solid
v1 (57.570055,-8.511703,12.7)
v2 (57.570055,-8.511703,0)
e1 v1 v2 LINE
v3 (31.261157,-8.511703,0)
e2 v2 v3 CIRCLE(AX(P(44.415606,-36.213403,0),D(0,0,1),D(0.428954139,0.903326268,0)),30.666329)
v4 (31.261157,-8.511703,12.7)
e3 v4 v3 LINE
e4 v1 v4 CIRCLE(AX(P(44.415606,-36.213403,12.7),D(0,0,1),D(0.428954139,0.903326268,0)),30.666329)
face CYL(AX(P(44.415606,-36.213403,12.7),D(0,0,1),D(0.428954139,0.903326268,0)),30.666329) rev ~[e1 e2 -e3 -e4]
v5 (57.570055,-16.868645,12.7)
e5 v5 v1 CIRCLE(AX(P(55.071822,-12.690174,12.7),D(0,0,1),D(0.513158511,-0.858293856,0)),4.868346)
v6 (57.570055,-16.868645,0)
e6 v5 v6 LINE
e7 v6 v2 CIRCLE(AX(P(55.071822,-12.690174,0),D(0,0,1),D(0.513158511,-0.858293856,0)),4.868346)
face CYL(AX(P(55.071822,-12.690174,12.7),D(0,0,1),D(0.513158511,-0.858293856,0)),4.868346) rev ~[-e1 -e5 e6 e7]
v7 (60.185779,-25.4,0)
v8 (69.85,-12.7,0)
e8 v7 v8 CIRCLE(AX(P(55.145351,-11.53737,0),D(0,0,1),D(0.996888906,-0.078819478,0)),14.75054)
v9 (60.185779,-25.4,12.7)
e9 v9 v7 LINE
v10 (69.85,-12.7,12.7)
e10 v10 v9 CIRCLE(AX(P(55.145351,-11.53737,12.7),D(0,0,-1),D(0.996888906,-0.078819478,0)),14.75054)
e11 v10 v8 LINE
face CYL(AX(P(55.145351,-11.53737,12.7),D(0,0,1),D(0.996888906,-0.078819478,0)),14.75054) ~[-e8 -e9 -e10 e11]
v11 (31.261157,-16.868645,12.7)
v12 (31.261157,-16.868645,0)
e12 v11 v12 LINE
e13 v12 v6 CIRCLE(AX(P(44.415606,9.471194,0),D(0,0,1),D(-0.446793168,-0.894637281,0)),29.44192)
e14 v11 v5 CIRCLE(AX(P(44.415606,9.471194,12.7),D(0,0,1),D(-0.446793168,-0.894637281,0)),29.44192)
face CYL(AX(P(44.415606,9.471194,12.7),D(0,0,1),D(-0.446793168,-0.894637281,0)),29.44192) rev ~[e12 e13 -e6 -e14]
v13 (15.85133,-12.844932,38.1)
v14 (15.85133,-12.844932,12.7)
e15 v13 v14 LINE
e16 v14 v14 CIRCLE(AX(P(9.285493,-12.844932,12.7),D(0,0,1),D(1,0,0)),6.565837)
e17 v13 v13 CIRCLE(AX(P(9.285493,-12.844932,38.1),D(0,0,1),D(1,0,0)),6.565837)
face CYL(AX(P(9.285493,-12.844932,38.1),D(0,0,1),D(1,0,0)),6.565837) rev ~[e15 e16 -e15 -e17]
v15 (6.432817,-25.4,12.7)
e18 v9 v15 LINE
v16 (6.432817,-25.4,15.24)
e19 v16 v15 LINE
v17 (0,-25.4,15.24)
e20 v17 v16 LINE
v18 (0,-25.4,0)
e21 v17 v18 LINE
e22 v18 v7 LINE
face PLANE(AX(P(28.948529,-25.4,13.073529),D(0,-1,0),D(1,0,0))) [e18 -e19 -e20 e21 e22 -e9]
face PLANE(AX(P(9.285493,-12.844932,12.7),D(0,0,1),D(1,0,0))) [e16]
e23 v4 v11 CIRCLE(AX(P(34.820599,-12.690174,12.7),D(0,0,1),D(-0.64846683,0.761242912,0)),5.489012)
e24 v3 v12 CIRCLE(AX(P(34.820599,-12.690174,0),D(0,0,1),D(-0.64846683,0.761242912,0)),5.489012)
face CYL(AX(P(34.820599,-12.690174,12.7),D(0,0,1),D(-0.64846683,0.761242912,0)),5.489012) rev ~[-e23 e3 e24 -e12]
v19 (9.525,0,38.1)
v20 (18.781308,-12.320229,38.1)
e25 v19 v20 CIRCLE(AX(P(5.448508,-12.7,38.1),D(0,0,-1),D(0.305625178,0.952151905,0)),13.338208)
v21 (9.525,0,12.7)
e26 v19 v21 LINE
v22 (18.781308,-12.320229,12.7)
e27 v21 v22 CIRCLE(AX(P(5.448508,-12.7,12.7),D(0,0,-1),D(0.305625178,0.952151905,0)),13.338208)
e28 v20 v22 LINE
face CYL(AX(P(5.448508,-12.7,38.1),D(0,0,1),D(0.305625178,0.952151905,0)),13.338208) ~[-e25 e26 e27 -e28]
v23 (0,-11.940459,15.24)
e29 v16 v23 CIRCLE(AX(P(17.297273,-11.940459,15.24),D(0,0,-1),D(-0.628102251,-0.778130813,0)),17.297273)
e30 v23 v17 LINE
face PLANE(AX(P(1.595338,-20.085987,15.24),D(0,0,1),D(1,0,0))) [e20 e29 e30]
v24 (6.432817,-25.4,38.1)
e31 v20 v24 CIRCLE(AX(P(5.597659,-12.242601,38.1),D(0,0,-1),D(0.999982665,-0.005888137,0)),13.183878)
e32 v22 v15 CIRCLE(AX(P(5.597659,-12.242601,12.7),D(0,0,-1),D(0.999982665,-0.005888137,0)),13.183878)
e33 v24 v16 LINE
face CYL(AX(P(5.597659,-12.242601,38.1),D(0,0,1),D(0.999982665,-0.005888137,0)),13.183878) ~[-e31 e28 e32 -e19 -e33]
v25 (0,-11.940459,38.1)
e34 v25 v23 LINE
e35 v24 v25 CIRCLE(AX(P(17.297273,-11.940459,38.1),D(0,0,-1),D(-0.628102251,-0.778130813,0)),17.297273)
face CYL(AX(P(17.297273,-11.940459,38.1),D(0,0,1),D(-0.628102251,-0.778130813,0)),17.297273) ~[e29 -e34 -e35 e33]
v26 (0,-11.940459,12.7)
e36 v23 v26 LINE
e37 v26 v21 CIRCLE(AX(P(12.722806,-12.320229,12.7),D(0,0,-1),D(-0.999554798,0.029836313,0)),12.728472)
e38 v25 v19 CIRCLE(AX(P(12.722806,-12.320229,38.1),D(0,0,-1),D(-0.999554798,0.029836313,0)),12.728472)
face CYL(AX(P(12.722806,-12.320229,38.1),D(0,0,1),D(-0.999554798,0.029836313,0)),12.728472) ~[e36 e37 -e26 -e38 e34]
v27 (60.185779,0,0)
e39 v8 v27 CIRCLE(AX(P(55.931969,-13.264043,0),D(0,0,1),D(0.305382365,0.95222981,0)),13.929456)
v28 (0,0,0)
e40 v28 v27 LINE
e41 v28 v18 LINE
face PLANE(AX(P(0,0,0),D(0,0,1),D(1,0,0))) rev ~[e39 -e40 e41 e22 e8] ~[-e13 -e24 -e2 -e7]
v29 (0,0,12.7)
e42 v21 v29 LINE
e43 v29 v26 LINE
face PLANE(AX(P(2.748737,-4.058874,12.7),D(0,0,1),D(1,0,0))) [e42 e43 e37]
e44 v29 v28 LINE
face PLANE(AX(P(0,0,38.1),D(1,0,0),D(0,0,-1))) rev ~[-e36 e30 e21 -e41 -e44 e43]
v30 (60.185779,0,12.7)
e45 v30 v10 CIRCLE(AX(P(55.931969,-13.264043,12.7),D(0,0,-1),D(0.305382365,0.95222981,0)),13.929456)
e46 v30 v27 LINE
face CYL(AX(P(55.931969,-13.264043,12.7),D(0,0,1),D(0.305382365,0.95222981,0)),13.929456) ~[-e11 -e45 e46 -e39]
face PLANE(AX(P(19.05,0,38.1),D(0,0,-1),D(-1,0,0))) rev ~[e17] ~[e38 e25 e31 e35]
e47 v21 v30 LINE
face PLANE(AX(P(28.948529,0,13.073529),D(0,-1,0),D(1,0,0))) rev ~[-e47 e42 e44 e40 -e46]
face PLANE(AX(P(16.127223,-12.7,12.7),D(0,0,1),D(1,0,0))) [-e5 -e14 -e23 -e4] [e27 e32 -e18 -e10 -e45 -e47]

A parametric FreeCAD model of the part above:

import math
import FreeCAD as App
import Part
import Sketcher
Q = App.Units.Quantity


def add_polygon(sketch, points):
    """Adds a closed chain of lines whose ends are joined by coincident constraints."""
    first, n = sketch.GeometryCount, len(points)
    for a, b in zip(points, points[1:] + points[:1]):
        sketch.addGeometry(Part.LineSegment(App.Vector(*a, 0), App.Vector(*b, 0)), False)
    for i in range(n):
        sketch.addConstraint(Sketcher.Constraint("Coincident", first + i, 2, first + (i + 1) % n, 1))

doc = App.newDocument("Part")
body = doc.addObject("PartDesign::Body", "Body")

sketch1 = doc.addObject("Sketcher::SketchObject", "Sketch")
body.addObject(sketch1)
sketch1.AttachmentSupport = (doc.XZ_Plane, [""])
sketch1.MapMode = "FlatFace"
add_polygon(sketch1, [(0, 38), (0, 0), (70, 0), (70, 13), (19, 13), (19, 38)])
sketch1.addConstraint([
    Sketcher.Constraint("Vertical", 0),
    Sketcher.Constraint("Horizontal", 1),
    Sketcher.Constraint("Vertical", 2),
    Sketcher.Constraint("Horizontal", 3),
    Sketcher.Constraint("Vertical", 4),
    Sketcher.Constraint("Horizontal", 5),
    Sketcher.Constraint("Coincident", 0, 2, -1, 1),
    Sketcher.Constraint("DistanceX", 3, 2, 3, 1, Q("2 in")),
    Sketcher.Constraint("DistanceY", 4, 1, 4, 2, Q("1 in")),
    Sketcher.Constraint("DistanceY", 0, 2, 0, 1, Q("1.5 in")),
    Sketcher.Constraint("DistanceX", 1, 1, 1, 2, Q("2.75 in")),
])
pad1 = doc.addObject("PartDesign::Pad", "Pad")
body.addObject(pad1)
pad1.Profile = sketch1
pad1.Length = Q("1 in")

sketch2 = doc.addObject("Sketcher::SketchObject", "Sketch001")
body.addObject(sketch2)
sketch2.AttachmentSupport = (doc.XY_Plane, [""])
sketch2.MapMode = "FlatFace"
sketch2.AttachmentOffset = App.Placement(App.Vector(0, 0, 0.5 * 25.4), App.Rotation())
sketch2.addGeometry([
    Part.ArcOfCircle(Part.Circle(App.Vector(56, -13, 0), App.Vector(0, 0, 1), 14), math.radians(2), math.radians(72)),
    Part.LineSegment(App.Vector(70, -13, 0), App.Vector(70, 0, 0)),
    Part.LineSegment(App.Vector(70, 0, 0), App.Vector(60, 0, 0)),
    Part.ArcOfCircle(Part.Circle(App.Vector(55, -12, 0), App.Vector(0, 0, 1), 15), math.radians(-70), math.radians(-5)),
    Part.LineSegment(App.Vector(60, -25, 0), App.Vector(70, -25, 0)),
    Part.LineSegment(App.Vector(70, -25, 0), App.Vector(70, -13, 0)),
], False)
sketch2.addConstraint([
    Sketcher.Constraint("Coincident", 0, 1, 1, 1),
    Sketcher.Constraint("Coincident", 1, 2, 2, 1),
    Sketcher.Constraint("Coincident", 2, 2, 0, 2),
    Sketcher.Constraint("Coincident", 3, 1, 4, 1),
    Sketcher.Constraint("Coincident", 4, 2, 5, 1),
    Sketcher.Constraint("Coincident", 5, 2, 3, 2),
    Sketcher.Constraint("Vertical", 1),
    Sketcher.Constraint("Horizontal", 2),
    Sketcher.Constraint("Horizontal", 4),
    Sketcher.Constraint("Vertical", 5),
    Sketcher.Constraint("Coincident", 5, 2, 0, 1),
    Sketcher.Constraint("PointOnObject", 1, 2, -1),
    Sketcher.Constraint("Vertical", 2, 2, 3, 1),
    Sketcher.Constraint("Equal", 1, 5),
    Sketcher.Constraint("DistanceY", 1, 1, 1, 2, Q("0.5 in")),
    Sketcher.Constraint("DistanceX", -1, 1, 0, 1, Q("2.75 in")),
    Sketcher.Constraint("Radius", 3, 14.75054),
    Sketcher.Constraint("Radius", 0, 13.929456),
    Sketcher.Constraint("DistanceX", 2, 2, 2, 1, 9.664221),
])
pocket1 = doc.addObject("PartDesign::Pocket", "Pocket")
body.addObject(pocket1)
pocket1.Profile = sketch2
pocket1.Length = Q("1 in")

sketch3 = doc.addObject("Sketcher::SketchObject", "Sketch002")
body.addObject(sketch3)
sketch3.AttachmentSupport = (doc.XY_Plane, [""])
sketch3.MapMode = "FlatFace"
sketch3.AttachmentOffset = App.Placement(App.Vector(0, 0, 0.5 * 25.4), App.Rotation())
sketch3.addGeometry([
    Part.ArcOfCircle(Part.Circle(App.Vector(44.4, -36.2, 0), App.Vector(0, 0, 1), 30.7), math.radians(65), math.radians(115)),
    Part.ArcOfCircle(Part.Circle(App.Vector(34.8, -12.7, 0), App.Vector(0, 0, 1), 5.5), math.radians(130), math.radians(230)),
    Part.ArcOfCircle(Part.Circle(App.Vector(44.4, 9.5, 0), App.Vector(0, 0, 1), 29.4), math.radians(-117), math.radians(-63)),
    Part.ArcOfCircle(Part.Circle(App.Vector(55.1, -12.7, 0), App.Vector(0, 0, 1), 4.9), math.radians(-59), math.radians(59)),
], False)
sketch3.addConstraint([
    Sketcher.Constraint("Coincident", 0, 2, 1, 1),
    Sketcher.Constraint("Coincident", 1, 2, 2, 1),
    Sketcher.Constraint("Coincident", 2, 2, 3, 1),
    Sketcher.Constraint("Coincident", 3, 2, 0, 1),
    Sketcher.Constraint("Horizontal", 1, 3, 3, 3),
    Sketcher.Constraint("Horizontal", 1, 2, 2, 2),
    Sketcher.Constraint("Horizontal", 0, 2, 3, 2),
    Sketcher.Constraint("Vertical", 0, 3, 2, 3),
    Sketcher.Constraint("Radius", 0, 30.666329),
    Sketcher.Constraint("Radius", 1, 5.489012),
    Sketcher.Constraint("Radius", 2, 29.44192),
    Sketcher.Constraint("Radius", 3, 4.868346),
    Sketcher.Constraint("DistanceX", -1, 1, 1, 3, 34.820599),
    Sketcher.Constraint("DistanceY", 0, 3, 0, 2, 27.701701),
    Sketcher.Constraint("DistanceX", -1, 1, 3, 3, 55.071822),
    Sketcher.Constraint("DistanceY", 0, 3, -1, 1, 36.213403),
])
pocket2 = doc.addObject("PartDesign::Pocket", "Pocket001")
body.addObject(pocket2)
pocket2.Profile = sketch3
pocket2.Length = Q("1 in")

sketch4 = doc.addObject("Sketcher::SketchObject", "Sketch003")
body.addObject(sketch4)
sketch4.AttachmentSupport = (doc.XY_Plane, [""])
sketch4.MapMode = "FlatFace"
sketch4.AttachmentOffset = App.Placement(App.Vector(0, 0, 1.5 * 25.4), App.Rotation())
sketch4.addGeometry(Part.Circle(App.Vector(9, -13, 0), App.Vector(0, 0, 1), 7), False)
sketch4.addConstraint([
    Sketcher.Constraint("Diameter", 0, 13.131675),
    Sketcher.Constraint("DistanceX", -1, 1, 0, 3, 9.285493),
    Sketcher.Constraint("DistanceY", 0, 3, -1, 1, 12.844932),
])
pocket3 = doc.addObject("PartDesign::Pocket", "Pocket002")
body.addObject(pocket3)
pocket3.Profile = sketch4
pocket3.Length = Q("1 in")

sketch5 = doc.addObject("Sketcher::SketchObject", "Sketch004")
body.addObject(sketch5)
sketch5.AttachmentSupport = (doc.XY_Plane, [""])
sketch5.MapMode = "FlatFace"
sketch5.AttachmentOffset = App.Placement(App.Vector(0, 0, 1.5 * 25.4), App.Rotation())
sketch5.addGeometry([
    Part.ArcOfCircle(Part.Circle(App.Vector(5, -13, 0), App.Vector(0, 0, 1), 13), math.radians(-72), math.radians(72)),
    Part.LineSegment(App.Vector(10, -25, 0), App.Vector(19, -25, 0)),
    Part.LineSegment(App.Vector(19, -25, 0), App.Vector(19, 0, 0)),
    Part.LineSegment(App.Vector(19, 0, 0), App.Vector(10, 0, 0)),
], False)
sketch5.addConstraint([
    Sketcher.Constraint("Coincident", 0, 1, 1, 1),
    Sketcher.Constraint("Coincident", 1, 2, 2, 1),
    Sketcher.Constraint("Coincident", 2, 2, 3, 1),
    Sketcher.Constraint("Coincident", 3, 2, 0, 2),
    Sketcher.Constraint("Horizontal", 1),
    Sketcher.Constraint("Vertical", 2),
    Sketcher.Constraint("Horizontal", 3),
    Sketcher.Constraint("PointOnObject", 2, 2, -1),
    Sketcher.Constraint("Vertical", 0, 1, 3, 2),
    Sketcher.Constraint("DistanceY", 2, 1, 2, 2, Q("1 in")),
    Sketcher.Constraint("DistanceX", 1, 1, 1, 2, Q("0.375 in")),
    Sketcher.Constraint("DistanceX", -1, 1, 1, 2, Q("0.75 in")),
    Sketcher.Constraint("Radius", 0, 13.338208),
])
pocket4 = doc.addObject("PartDesign::Pocket", "Pocket003")
body.addObject(pocket4)
pocket4.Profile = sketch5
pocket4.Length = Q("1 in")

sketch6 = doc.addObject("Sketcher::SketchObject", "Sketch005")
body.addObject(sketch6)
sketch6.AttachmentSupport = (doc.XY_Plane, [""])
sketch6.MapMode = "FlatFace"
sketch6.AttachmentOffset = App.Placement(App.Vector(0, 0, 1.5 * 25.4), App.Rotation())
sketch6.addGeometry([
    Part.ArcOfCircle(Part.Circle(App.Vector(12.7, -12.3, 0), App.Vector(0, 0, 1), 12.7), math.radians(105), math.radians(178)),
    Part.LineSegment(App.Vector(9.5, 0, 0), App.Vector(0, 0, 0)),
    Part.LineSegment(App.Vector(0, 0, 0), App.Vector(0, -11.9, 0)),
    Part.ArcOfCircle(Part.Circle(App.Vector(5.4, -12.7, 0), App.Vector(0, 0, 1), 13.3), math.radians(-72), math.radians(2)),
    Part.ArcOfCircle(Part.Circle(App.Vector(5.6, -12.2, 0), App.Vector(0, 0, 1), 13.2), math.radians(-86), math.radians(0)),
    Part.LineSegment(App.Vector(6.4, -25.4, 0), App.Vector(9.5, -25.4, 0)),
], False)
sketch6.addConstraint([
    Sketcher.Constraint("Coincident", 0, 1, 1, 1),
    Sketcher.Constraint("Coincident", 1, 2, 2, 1),
    Sketcher.Constraint("Coincident", 2, 2, 0, 2),
    Sketcher.Constraint("Coincident", 3, 2, 4, 2),
    Sketcher.Constraint("Coincident", 4, 1, 5, 1),
    Sketcher.Constraint("Coincident", 5, 2, 3, 1),
    Sketcher.Constraint("Horizontal", 1),
    Sketcher.Constraint("Vertical", 2),
    Sketcher.Constraint("Horizontal", 5),
    Sketcher.Constraint("Coincident", 1, 2, -1, 1),
    Sketcher.Constraint("Horizontal", 0, 3, 3, 2),
    Sketcher.Constraint("Vertical", 0, 1, 5, 2),
    Sketcher.Constraint("DistanceY", 4, 1, -1, 1, Q("1 in")),
    Sketcher.Constraint("DistanceY", 3, 3, -1, 1, Q("0.5 in")),
    Sketcher.Constraint("DistanceX", 1, 2, 1, 1, Q("0.375 in")),
    Sketcher.Constraint("Radius", 4, 13.183878),
    Sketcher.Constraint("Radius", 0, 12.728472),
    Sketcher.Constraint("Radius", 3, 13.338208),
    Sketcher.Constraint("DistanceY", 2, 2, 2, 1, 11.940459),
    Sketcher.Constraint("DistanceY", 4, 3, -1, 1, 12.242601),
])
pocket5 = doc.addObject("PartDesign::Pocket", "Pocket004")
body.addObject(pocket5)
pocket5.Profile = sketch6
pocket5.Length = Q("1 in")

sketch7 = doc.addObject("Sketcher::SketchObject", "Sketch006")
body.addObject(sketch7)
sketch7.AttachmentSupport = (doc.XY_Plane, [""])
sketch7.MapMode = "FlatFace"
sketch7.AttachmentOffset = App.Placement(App.Vector(0, 0, 1.5 * 25.4), App.Rotation())
sketch7.addGeometry([
    Part.ArcOfCircle(Part.Circle(App.Vector(17, -12, 0), App.Vector(0, 0, 1), 17), math.radians(180), math.radians(231)),
    Part.LineSegment(App.Vector(0, -12, 0), App.Vector(0, -25, 0)),
    Part.LineSegment(App.Vector(0, -25, 0), App.Vector(6, -25, 0)),
], False)
sketch7.addConstraint([
    Sketcher.Constraint("Tangent", 0, 1, 1, 1),
    Sketcher.Constraint("Coincident", 1, 2, 2, 1),
    Sketcher.Constraint("Coincident", 2, 2, 0, 2),
    Sketcher.Constraint("Vertical", 1),
    Sketcher.Constraint("Horizontal", 2),
    Sketcher.Constraint("PointOnObject", 0, 1, -2),
    Sketcher.Constraint("DistanceY", 1, 2, -1, 1, Q("1 in")),
    Sketcher.Constraint("Radius", 0, 17.297273),
    Sketcher.Constraint("DistanceY", 1, 2, 1, 1, 13.459541),
])
pocket6 = doc.addObject("PartDesign::Pocket", "Pocket005")
body.addObject(pocket6)
pocket6.Profile = sketch7
pocket6.Length = Q("0.9 in")

doc.recompute()
